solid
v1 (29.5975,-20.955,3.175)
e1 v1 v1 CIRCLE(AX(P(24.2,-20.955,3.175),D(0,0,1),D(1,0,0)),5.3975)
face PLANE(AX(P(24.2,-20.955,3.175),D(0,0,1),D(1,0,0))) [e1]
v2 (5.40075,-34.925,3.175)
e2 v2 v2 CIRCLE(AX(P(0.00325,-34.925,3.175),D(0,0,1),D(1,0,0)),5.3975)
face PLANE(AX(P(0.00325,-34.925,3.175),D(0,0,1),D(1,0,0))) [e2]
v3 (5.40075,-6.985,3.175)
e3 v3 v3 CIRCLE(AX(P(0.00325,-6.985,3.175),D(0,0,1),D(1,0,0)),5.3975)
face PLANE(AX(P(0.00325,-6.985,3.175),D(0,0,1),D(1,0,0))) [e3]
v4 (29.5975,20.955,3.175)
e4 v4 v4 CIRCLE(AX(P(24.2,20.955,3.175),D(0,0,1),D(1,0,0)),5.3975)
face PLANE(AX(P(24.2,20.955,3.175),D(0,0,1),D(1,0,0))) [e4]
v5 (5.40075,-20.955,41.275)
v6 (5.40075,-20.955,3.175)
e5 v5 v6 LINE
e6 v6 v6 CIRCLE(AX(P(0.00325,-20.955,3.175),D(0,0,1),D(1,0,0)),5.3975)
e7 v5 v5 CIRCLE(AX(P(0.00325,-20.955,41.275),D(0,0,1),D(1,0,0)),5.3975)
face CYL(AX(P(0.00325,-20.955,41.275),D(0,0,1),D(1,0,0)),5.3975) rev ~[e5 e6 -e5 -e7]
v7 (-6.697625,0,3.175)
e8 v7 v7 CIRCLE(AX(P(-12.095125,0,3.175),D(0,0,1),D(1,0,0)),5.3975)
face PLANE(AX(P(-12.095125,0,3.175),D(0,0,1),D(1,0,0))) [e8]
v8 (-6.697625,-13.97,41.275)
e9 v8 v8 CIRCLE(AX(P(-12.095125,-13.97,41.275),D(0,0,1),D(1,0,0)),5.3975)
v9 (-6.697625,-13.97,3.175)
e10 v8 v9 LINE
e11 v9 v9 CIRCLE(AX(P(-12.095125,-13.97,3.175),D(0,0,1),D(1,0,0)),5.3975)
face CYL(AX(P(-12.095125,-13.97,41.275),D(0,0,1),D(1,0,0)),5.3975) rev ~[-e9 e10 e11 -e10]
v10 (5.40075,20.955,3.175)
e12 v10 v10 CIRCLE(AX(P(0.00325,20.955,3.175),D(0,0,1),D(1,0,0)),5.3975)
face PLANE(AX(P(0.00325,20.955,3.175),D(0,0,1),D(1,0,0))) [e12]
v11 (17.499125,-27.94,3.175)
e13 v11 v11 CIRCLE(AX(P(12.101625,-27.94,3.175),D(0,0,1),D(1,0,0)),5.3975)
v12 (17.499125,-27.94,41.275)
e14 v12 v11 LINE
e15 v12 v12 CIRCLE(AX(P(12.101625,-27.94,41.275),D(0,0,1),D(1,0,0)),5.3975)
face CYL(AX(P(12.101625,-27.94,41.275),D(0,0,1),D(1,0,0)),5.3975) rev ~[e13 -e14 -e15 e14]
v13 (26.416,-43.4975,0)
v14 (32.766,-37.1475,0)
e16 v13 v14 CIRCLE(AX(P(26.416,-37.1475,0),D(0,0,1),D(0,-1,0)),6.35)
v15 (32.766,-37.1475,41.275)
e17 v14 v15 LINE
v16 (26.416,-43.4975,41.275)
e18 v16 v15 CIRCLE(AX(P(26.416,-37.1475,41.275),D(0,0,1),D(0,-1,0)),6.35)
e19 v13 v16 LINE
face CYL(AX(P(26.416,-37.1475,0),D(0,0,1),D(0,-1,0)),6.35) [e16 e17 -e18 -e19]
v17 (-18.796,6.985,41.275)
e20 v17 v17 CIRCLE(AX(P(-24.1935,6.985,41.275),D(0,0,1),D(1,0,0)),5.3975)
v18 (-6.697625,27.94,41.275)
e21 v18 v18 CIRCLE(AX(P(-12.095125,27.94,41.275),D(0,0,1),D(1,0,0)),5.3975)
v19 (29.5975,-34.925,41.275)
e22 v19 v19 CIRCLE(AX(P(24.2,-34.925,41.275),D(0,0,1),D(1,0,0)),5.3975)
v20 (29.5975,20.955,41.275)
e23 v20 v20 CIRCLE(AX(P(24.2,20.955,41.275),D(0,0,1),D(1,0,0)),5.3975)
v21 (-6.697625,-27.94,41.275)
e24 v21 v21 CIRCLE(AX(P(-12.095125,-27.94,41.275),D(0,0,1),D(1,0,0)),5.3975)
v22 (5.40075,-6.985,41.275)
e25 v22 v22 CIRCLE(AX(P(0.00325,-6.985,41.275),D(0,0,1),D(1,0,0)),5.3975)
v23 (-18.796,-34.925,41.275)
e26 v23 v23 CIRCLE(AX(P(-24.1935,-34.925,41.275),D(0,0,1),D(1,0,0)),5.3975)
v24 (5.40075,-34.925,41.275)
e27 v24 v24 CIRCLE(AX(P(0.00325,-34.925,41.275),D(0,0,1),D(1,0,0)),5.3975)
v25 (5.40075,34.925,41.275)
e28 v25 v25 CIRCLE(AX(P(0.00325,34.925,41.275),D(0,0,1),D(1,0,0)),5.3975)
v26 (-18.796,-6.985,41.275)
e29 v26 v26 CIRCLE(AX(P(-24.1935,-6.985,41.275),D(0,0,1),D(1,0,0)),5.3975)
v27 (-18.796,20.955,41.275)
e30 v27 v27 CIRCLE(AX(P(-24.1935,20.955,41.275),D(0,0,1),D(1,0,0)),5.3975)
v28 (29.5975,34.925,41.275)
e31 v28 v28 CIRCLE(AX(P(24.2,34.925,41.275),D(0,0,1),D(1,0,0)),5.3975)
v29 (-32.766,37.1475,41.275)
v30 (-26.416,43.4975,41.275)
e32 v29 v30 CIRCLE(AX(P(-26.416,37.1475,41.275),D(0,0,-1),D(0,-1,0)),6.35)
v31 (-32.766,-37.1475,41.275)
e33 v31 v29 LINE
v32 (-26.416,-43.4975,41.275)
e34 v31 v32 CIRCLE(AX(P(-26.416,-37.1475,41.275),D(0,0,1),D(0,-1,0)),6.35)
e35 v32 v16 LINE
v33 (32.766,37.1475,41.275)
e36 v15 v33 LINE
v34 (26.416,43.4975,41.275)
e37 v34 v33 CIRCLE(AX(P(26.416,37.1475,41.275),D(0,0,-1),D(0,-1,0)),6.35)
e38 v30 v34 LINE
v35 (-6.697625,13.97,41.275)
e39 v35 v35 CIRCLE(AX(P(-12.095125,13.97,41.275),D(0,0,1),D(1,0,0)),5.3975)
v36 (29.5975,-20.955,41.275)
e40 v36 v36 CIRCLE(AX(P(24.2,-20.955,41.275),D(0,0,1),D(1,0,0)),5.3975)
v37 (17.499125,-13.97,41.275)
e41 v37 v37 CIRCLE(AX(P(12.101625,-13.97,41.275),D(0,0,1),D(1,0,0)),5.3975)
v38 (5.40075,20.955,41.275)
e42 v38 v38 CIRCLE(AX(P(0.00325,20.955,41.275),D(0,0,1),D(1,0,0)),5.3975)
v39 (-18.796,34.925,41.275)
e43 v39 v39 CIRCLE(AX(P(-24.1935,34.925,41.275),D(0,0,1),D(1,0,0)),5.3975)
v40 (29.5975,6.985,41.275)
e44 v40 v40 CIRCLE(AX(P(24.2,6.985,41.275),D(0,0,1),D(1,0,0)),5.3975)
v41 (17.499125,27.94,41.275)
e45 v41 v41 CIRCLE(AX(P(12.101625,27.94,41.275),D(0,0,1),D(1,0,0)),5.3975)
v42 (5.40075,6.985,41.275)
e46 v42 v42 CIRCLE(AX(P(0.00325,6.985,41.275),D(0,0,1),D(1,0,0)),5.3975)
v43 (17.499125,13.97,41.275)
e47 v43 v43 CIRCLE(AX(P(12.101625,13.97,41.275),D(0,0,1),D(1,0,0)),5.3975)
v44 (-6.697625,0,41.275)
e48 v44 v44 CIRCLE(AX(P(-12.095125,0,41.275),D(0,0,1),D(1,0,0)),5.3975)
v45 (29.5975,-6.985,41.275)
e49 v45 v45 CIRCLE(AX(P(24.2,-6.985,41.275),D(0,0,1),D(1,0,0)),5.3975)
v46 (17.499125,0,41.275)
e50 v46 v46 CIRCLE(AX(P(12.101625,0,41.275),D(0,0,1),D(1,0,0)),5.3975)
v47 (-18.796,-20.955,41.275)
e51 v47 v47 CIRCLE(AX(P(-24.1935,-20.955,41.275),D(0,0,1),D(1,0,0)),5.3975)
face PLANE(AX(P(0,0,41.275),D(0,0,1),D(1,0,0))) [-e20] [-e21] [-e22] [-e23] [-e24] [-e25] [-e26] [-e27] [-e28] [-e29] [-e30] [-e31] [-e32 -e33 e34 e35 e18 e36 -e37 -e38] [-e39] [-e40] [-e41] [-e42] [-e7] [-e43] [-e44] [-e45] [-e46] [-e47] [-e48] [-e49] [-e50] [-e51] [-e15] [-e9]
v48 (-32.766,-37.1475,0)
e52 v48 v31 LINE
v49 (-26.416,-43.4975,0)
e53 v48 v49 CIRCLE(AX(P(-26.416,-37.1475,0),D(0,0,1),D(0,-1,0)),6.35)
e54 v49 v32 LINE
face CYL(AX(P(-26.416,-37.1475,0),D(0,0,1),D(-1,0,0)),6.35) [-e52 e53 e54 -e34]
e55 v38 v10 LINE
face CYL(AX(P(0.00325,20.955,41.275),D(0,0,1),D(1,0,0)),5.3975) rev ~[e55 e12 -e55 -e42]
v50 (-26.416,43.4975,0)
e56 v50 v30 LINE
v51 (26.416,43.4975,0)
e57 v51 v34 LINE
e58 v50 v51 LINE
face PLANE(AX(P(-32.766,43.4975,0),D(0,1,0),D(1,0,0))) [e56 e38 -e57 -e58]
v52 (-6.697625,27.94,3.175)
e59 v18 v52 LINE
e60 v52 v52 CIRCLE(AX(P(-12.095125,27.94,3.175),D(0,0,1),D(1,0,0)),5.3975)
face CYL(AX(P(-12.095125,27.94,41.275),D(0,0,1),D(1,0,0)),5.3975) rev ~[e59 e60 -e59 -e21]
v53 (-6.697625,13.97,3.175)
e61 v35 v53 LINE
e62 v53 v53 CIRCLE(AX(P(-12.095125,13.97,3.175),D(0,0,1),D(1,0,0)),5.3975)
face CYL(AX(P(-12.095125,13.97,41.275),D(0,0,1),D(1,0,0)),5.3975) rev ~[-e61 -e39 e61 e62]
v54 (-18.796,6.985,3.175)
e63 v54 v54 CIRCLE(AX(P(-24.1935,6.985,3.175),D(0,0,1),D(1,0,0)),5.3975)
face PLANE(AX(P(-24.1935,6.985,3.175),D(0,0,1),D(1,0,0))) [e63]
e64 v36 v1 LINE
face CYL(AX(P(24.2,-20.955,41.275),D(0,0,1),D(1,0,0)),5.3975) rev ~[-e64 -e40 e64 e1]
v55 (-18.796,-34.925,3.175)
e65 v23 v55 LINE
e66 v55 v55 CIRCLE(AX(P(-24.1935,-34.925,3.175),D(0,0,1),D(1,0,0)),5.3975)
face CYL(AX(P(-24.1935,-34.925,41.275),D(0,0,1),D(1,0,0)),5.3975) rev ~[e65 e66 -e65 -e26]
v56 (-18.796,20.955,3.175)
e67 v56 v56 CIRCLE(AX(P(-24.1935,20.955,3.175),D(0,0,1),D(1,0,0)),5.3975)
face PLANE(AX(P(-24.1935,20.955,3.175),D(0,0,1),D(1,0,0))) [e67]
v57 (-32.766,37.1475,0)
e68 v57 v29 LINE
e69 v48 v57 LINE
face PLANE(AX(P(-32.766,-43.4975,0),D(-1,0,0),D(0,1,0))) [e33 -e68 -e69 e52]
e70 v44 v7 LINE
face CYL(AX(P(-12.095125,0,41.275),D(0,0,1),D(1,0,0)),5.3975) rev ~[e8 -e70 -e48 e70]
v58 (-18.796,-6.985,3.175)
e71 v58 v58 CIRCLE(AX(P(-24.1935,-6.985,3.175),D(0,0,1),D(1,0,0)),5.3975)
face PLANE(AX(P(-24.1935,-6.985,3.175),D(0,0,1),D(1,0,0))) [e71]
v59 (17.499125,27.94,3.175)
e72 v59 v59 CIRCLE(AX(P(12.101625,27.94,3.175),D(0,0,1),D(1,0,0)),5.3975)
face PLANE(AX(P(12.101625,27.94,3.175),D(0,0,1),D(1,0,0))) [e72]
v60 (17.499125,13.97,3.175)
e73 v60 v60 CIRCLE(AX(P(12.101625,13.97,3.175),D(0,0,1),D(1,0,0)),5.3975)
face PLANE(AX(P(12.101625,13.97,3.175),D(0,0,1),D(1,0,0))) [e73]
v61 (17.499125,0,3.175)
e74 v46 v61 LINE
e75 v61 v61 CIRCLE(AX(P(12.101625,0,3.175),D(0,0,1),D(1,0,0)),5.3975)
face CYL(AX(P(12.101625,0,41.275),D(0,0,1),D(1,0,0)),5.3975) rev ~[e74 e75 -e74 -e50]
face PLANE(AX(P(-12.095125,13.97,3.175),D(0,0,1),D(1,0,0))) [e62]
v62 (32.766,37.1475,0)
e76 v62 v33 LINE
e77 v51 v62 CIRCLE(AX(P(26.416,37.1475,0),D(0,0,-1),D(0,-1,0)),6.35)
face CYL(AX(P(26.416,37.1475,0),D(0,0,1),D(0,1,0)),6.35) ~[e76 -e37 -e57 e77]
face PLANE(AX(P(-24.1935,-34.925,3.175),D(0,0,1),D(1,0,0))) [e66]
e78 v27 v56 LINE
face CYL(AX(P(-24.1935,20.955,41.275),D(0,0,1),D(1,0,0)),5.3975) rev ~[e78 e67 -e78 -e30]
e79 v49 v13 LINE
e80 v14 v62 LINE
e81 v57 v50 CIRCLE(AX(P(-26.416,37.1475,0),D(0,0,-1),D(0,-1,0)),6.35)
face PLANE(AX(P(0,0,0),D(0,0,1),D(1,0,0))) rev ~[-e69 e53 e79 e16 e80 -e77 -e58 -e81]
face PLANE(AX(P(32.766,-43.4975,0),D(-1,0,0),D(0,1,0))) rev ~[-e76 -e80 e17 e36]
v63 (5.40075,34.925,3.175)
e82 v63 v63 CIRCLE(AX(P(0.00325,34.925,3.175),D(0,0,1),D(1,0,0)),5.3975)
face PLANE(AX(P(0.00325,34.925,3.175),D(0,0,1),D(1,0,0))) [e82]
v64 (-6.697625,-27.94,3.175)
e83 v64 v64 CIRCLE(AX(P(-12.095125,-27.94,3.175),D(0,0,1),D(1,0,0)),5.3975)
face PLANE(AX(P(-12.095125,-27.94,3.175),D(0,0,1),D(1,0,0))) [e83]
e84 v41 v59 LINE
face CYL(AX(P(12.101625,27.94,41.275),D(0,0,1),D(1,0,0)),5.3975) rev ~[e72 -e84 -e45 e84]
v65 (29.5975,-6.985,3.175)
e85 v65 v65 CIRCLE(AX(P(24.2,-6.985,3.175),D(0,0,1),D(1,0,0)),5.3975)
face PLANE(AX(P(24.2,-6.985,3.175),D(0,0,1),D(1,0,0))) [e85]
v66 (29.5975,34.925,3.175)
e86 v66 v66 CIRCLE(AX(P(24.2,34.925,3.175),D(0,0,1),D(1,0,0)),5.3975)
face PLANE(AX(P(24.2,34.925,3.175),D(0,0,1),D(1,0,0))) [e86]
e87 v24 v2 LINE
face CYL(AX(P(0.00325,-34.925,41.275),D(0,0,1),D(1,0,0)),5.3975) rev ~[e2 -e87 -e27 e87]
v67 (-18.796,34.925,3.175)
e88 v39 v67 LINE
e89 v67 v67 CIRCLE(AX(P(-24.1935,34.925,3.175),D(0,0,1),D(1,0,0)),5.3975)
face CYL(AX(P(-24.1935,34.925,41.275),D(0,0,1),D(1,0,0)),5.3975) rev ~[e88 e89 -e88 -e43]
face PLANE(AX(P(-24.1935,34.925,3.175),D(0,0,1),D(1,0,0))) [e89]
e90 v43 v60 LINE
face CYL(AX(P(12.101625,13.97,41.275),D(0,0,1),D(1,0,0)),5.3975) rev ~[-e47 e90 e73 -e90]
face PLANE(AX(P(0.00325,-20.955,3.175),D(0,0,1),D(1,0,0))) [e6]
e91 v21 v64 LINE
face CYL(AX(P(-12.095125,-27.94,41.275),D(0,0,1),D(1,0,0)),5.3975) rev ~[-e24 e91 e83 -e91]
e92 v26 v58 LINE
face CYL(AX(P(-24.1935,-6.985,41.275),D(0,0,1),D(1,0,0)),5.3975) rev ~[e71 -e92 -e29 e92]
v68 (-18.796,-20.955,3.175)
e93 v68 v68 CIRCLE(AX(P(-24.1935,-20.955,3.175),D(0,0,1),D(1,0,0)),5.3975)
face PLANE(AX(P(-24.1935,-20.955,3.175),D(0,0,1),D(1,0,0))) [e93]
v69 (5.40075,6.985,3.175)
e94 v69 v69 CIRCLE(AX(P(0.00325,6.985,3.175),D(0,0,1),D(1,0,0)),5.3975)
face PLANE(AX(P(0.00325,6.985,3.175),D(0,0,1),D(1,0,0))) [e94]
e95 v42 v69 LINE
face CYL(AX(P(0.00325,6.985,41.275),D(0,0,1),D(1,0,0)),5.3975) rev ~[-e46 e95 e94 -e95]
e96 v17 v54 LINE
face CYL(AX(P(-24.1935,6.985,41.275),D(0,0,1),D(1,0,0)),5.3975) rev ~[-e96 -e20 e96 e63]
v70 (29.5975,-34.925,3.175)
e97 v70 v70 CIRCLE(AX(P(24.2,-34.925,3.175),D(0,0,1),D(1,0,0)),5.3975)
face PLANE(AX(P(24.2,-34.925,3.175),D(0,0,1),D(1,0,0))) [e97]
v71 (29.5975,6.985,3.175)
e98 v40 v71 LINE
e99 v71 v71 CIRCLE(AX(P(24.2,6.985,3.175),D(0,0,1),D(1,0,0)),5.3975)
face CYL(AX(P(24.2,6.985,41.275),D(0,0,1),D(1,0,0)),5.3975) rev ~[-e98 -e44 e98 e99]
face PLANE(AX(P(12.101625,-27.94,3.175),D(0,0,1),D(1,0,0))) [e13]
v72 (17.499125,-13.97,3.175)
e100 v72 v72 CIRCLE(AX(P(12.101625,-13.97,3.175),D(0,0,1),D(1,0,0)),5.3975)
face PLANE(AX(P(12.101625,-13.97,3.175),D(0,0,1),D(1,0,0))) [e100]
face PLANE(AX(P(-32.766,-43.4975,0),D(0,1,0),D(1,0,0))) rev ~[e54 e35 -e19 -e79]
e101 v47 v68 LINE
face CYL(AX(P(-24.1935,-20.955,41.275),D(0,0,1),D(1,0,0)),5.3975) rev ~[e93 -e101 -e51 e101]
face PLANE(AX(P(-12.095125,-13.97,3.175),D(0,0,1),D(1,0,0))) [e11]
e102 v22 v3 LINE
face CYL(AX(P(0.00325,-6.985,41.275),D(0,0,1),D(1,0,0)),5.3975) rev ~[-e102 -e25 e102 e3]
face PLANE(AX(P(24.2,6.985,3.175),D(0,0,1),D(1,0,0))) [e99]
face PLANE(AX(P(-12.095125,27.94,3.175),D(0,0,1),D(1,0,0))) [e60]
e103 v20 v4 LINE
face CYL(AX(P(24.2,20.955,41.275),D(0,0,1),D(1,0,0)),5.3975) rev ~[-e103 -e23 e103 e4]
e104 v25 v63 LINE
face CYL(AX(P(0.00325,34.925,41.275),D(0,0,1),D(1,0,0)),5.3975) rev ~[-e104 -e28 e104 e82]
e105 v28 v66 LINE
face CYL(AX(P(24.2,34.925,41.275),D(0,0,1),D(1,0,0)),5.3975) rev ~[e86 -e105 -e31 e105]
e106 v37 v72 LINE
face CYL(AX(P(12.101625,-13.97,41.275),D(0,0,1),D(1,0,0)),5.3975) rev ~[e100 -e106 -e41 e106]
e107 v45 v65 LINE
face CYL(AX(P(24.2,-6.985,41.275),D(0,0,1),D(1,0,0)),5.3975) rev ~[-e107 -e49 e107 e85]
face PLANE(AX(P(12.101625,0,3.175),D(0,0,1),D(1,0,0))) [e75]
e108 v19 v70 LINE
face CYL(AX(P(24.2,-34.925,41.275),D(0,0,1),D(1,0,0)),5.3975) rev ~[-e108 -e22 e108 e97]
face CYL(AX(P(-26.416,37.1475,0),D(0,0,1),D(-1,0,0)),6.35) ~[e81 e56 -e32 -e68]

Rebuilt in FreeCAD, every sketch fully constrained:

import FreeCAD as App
import Part
import Sketcher

V = App.Vector
Q = App.Units.Quantity


def edges_at(feature, points):
    """Names of the edges that pass closest to the given points."""
    edges = feature.Shape.Edges
    near = lambda p: min(range(len(edges)), key=lambda i: edges[i].distToShape(Part.Vertex(*p))[0])
    return sorted({f"Edge{near(p) + 1}" for p in points})


def add_polygon(sketch, points):
    """Adds a closed chain of lines whose ends are joined by coincident constraints."""
    first, n = sketch.GeometryCount, len(points)
    for a, b in zip(points, points[1:] + points[:1]):
        sketch.addGeometry(Part.LineSegment(App.Vector(*a, 0), App.Vector(*b, 0)), False)
    for i in range(n):
        sketch.addConstraint(Sketcher.Constraint("Coincident", first + i, 2, first + (i + 1) % n, 1))

doc = App.newDocument("Part")
params = doc.addObject("Spreadsheet::Sheet", "Params")
for row, (alias, value) in enumerate([
    ("sketch1_width", "2.58 in"),
    ("sketch1_height", "3.425 in"),
    ("pad1_length", "1.625 in"),
    ("sketch2_diameter", "0.425 in"),
    ("pocket1_length", "1.5 in"),
    ("fillet_radius", "0.25 in"),
], start=1):
    params.set(f"A{row}", alias)
    params.set(f"B{row}", "=" + value)
    params.setAlias(f"B{row}", alias)

body = doc.addObject("PartDesign::Body", "Body")

sketch1 = doc.addObject("Sketcher::SketchObject", "Sketch")
body.addObject(sketch1)
sketch1.AttachmentSupport = (doc.XY_Plane, [""])
sketch1.MapMode = "FlatFace"
add_polygon(sketch1, [(-33, 43), (-33, -43), (33, -43), (33, 43)])
sketch1.addConstraint([
    Sketcher.Constraint("Vertical", 0),
    Sketcher.Constraint("Horizontal", 1),
    Sketcher.Constraint("Vertical", 2),
    Sketcher.Constraint("Horizontal", 3),
    Sketcher.Constraint("Symmetric", 0, 2, 2, 2, -1, 1),
    Sketcher.Constraint("DistanceX", 1, 1, 1, 2, Q("2.58 in")),
    Sketcher.Constraint("DistanceY", 0, 2, 0, 1, Q("3.425 in")),
])
sketch1.setExpression("Constraints[9]", "Params.sketch1_width")
sketch1.setExpression("Constraints[10]", "Params.sketch1_height")
pad1 = doc.addObject("PartDesign::Pad", "Pad")
body.addObject(pad1)
pad1.Profile = sketch1
pad1.setExpression("Length", "Params.pad1_length")

sketch2 = doc.addObject("Sketcher::SketchObject", "Sketch001")
body.addObject(sketch2)
sketch2.AttachmentSupport = (doc.XY_Plane, [""])
sketch2.MapMode = "FlatFace"
sketch2.AttachmentOffset = App.Placement(V(0, 0, 1.625 * 25.4), App.Rotation())
sketch2.addGeometry([
    Part.Circle(V(-24, 35, 0), V(0, 0, 1), 5),
    Part.Circle(V(-24, 21, 0), V(0, 0, 1), 5),
    Part.Circle(V(-24, 7, 0), V(0, 0, 1), 5),
    Part.Circle(V(-24, -7, 0), V(0, 0, 1), 5),
    Part.Circle(V(-24, -21, 0), V(0, 0, 1), 5),
    Part.Circle(V(-24, -35, 0), V(0, 0, 1), 5),
    Part.Circle(V(-12, 28, 0), V(0, 0, 1), 5),
    Part.Circle(V(-12, 14, 0), V(0, 0, 1), 5),
    Part.Circle(V(-12, 0, 0), V(0, 0, 1), 5),
    Part.Circle(V(-12, -14, 0), V(0, 0, 1), 5),
    Part.Circle(V(-12, -28, 0), V(0, 0, 1), 5),
    Part.Circle(V(12, 0, 0), V(0, 0, 1), 5),
    Part.Circle(V(12, 14, 0), V(0, 0, 1), 5),
    Part.Circle(V(12, -14, 0), V(0, 0, 1), 5),
    Part.Circle(V(0, 7, 0), V(0, 0, 1), 5),
    Part.Circle(V(0, 21, 0), V(0, 0, 1), 5),
    Part.Circle(V(0, 35, 0), V(0, 0, 1), 5),
    Part.Circle(V(12, -28, 0), V(0, 0, 1), 5),
    Part.Circle(V(12, 28, 0), V(0, 0, 1), 5),
    Part.Circle(V(0, -7, 0), V(0, 0, 1), 5),
    Part.Circle(V(0, -21, 0), V(0, 0, 1), 5),
    Part.Circle(V(0, -35, 0), V(0, 0, 1), 5),
    Part.Circle(V(24, 7, 0), V(0, 0, 1), 5),
    Part.Circle(V(24, 21, 0), V(0, 0, 1), 5),
    Part.Circle(V(24, 35, 0), V(0, 0, 1), 5),
    Part.Circle(V(24, -7, 0), V(0, 0, 1), 5),
    Part.Circle(V(24, -21, 0), V(0, 0, 1), 5),
    Part.Circle(V(24, -35, 0), V(0, 0, 1), 5),
], False)
sketch2.addConstraint([
    Sketcher.Constraint("Equal", 0, 1),
    Sketcher.Constraint("Equal", 1, 2),
    Sketcher.Constraint("Equal", 2, 3),
    Sketcher.Constraint("Equal", 3, 4),
    Sketcher.Constraint("Equal", 4, 5),
    Sketcher.Constraint("Equal", 5, 6),
    Sketcher.Constraint("Equal", 6, 7),
    Sketcher.Constraint("Equal", 7, 8),
    Sketcher.Constraint("Equal", 8, 9),
    Sketcher.Constraint("Equal", 9, 10),
    Sketcher.Constraint("Equal", 10, 11),
    Sketcher.Constraint("Equal", 11, 12),
    Sketcher.Constraint("Equal", 12, 13),
    Sketcher.Constraint("Equal", 13, 14),
    Sketcher.Constraint("Equal", 14, 15),
    Sketcher.Constraint("Equal", 15, 16),
    Sketcher.Constraint("Equal", 16, 17),
    Sketcher.Constraint("Equal", 17, 18),
    Sketcher.Constraint("Equal", 18, 19),
    Sketcher.Constraint("Equal", 19, 20),
    Sketcher.Constraint("Equal", 20, 21),
    Sketcher.Constraint("Equal", 21, 22),
    Sketcher.Constraint("Equal", 22, 23),
    Sketcher.Constraint("Equal", 23, 24),
    Sketcher.Constraint("Equal", 24, 25),
    Sketcher.Constraint("Equal", 25, 26),
    Sketcher.Constraint("Equal", 26, 27),
    Sketcher.Constraint("Symmetric", 2, 3, 3, 3, -1),
    Sketcher.Constraint("Symmetric", 1, 3, 4, 3, -1),
    Sketcher.Constraint("Symmetric", 0, 3, 5, 3, -1),
    Sketcher.Constraint("Symmetric", 7, 3, 9, 3, -1),
    Sketcher.Constraint("Symmetric", 6, 3, 10, 3, -1),
    Sketcher.Constraint("Symmetric", 12, 3, 13, 3, -1),
    Sketcher.Constraint("Symmetric", 17, 3, 18, 3, -1),
    Sketcher.Constraint("Symmetric", 14, 3, 19, 3, -1),
    Sketcher.Constraint("Symmetric", 15, 3, 20, 3, -1),
    Sketcher.Constraint("Symmetric", 16, 3, 21, 3, -1),
    Sketcher.Constraint("Symmetric", 22, 3, 25, 3, -1),
    Sketcher.Constraint("Symmetric", 23, 3, 26, 3, -1),
    Sketcher.Constraint("Symmetric", 24, 3, 27, 3, -1),
    Sketcher.Constraint("PointOnObject", 8, 3, -1),
    Sketcher.Constraint("PointOnObject", 11, 3, -1),
    Sketcher.Constraint("Horizontal", 7, 3, 12, 3),
    Sketcher.Constraint("Horizontal", 2, 3, 14, 3),
    Sketcher.Constraint("Horizontal", 1, 3, 15, 3),
    Sketcher.Constraint("Horizontal", 0, 3, 16, 3),
    Sketcher.Constraint("Horizontal", 10, 3, 17, 3),
    Sketcher.Constraint("Horizontal", 14, 3, 22, 3),
    Sketcher.Constraint("Horizontal", 15, 3, 23, 3),
    Sketcher.Constraint("Horizontal", 16, 3, 24, 3),
    Sketcher.Constraint("Vertical", 0, 3, 1, 3),
    Sketcher.Constraint("Vertical", 1, 3, 2, 3),
    Sketcher.Constraint("Vertical", 6, 3, 7, 3),
    Sketcher.Constraint("Vertical", 7, 3, 8, 3),
    Sketcher.Constraint("Vertical", 11, 3, 12, 3),
    Sketcher.Constraint("Vertical", 14, 3, 15, 3),
    Sketcher.Constraint("Vertical", 15, 3, 16, 3),
    Sketcher.Constraint("Vertical", 13, 3, 17, 3),
    Sketcher.Constraint("Vertical", 22, 3, 23, 3),
    Sketcher.Constraint("Vertical", 23, 3, 24, 3),
    Sketcher.Constraint("Diameter", 0, Q("0.425 in")),
    Sketcher.Constraint("DistanceY", -1, 1, 6, 3, Q("1.1 in")),
    Sketcher.Constraint("DistanceY", 2, 3, 0, 3, Q("1.1 in")),
    Sketcher.Constraint("DistanceY", 3, 3, 1, 3, Q("1.1 in")),
    Sketcher.Constraint("DistanceY", 9, 3, 12, 3, Q("1.1 in")),
    Sketcher.Constraint("DistanceY", 1, 3, 0, 3, Q("0.55 in")),
    Sketcher.Constraint("DistanceX", 0, 3, -1, 1, Q("0.9525 in")),
    Sketcher.Constraint("DistanceX", -1, 1, 22, 3, Q("24.2 mm")),
    Sketcher.Constraint("DistanceX", -1, 1, 14, 3, Q("0.00325 mm")),
    Sketcher.Constraint("DistanceX", 8, 3, 11, 3, Q("24.19675 mm")),
    Sketcher.Constraint("DistanceX", 6, 3, -1, 1, Q("12.095125 mm")),
])
sketch2.setExpression("Constraints[60]", "Params.sketch2_diameter")
pocket1 = doc.addObject("PartDesign::Pocket", "Pocket")
body.addObject(pocket1)
pocket1.Profile = sketch2
pocket1.setExpression("Length", "Params.pocket1_length")
doc.recompute()

fillet = doc.addObject("PartDesign::Fillet", "Fillet")
body.addObject(fillet)
fillet.Base = (pocket1, edges_at(pocket1, [
    (-32.766, -43.498, 20.637),
    (32.766, -43.498, 20.637),
    (32.766, 43.498, 20.637),
    (-32.766, 43.498, 20.637),
]))
fillet.setExpression("Radius", "Params.fillet_radius")

doc.recompute()
